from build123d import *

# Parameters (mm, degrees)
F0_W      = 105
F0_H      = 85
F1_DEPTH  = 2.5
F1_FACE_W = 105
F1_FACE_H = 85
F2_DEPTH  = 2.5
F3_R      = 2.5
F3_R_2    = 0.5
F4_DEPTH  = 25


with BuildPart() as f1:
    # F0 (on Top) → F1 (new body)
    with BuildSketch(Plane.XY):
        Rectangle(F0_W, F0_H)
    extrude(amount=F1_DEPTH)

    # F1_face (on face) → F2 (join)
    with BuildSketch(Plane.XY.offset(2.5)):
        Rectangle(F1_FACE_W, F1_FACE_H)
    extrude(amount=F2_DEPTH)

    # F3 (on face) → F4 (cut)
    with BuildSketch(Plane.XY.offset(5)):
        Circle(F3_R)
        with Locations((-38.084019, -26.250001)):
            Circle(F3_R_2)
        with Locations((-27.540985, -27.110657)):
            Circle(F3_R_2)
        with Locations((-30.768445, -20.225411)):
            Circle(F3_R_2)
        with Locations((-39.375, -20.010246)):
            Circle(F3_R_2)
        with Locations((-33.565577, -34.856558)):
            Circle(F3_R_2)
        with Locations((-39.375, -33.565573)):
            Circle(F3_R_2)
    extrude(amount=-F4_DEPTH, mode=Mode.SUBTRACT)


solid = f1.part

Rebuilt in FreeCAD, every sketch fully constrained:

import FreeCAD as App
import Part
import Sketcher


def add_polygon(sketch, points):
    """Adds a closed chain of lines whose ends are joined by coincident constraints."""
    first, n = sketch.GeometryCount, len(points)
    for a, b in zip(points, points[1:] + points[:1]):
        sketch.addGeometry(Part.LineSegment(App.Vector(*a, 0), App.Vector(*b, 0)), False)
    for i in range(n):
        sketch.addConstraint(Sketcher.Constraint("Coincident", first + i, 2, first + (i + 1) % n, 1))

doc = App.newDocument("Part")
body = doc.addObject("PartDesign::Body", "Body")

sketch1 = body.newObject("Sketcher::SketchObject", "Sketch")
sketch1.AttachmentSupport = (doc.getObject("XY_Plane"), [""])
sketch1.MapMode = "FlatFace"
add_polygon(sketch1, [(-52, 42), (-52, -42), (52, -42), (52, 42)])
sketch1.addConstraint(Sketcher.Constraint("Vertical", 0))
sketch1.addConstraint(Sketcher.Constraint("Horizontal", 1))
sketch1.addConstraint(Sketcher.Constraint("Vertical", 2))
sketch1.addConstraint(Sketcher.Constraint("Horizontal", 3))
sketch1.addConstraint(Sketcher.Constraint("Symmetric", 0, 2, 2, 2, -1, 1))
sketch1.addConstraint(Sketcher.Constraint("DistanceX", 1, 1, 1, 2, 105.0))
sketch1.addConstraint(Sketcher.Constraint("DistanceY", 0, 2, 0, 1, 85.0))
pad1 = body.newObject("PartDesign::Pad", "Pad")
pad1.Profile = sketch1
pad1.Length = 2.5

sketch2 = body.newObject("Sketcher::SketchObject", "Sketch001")
sketch2.AttachmentSupport = (doc.getObject("XY_Plane"), [""])
sketch2.MapMode = "FlatFace"
sketch2.AttachmentOffset = App.Placement(App.Vector(0, 0, 2.5), App.Rotation())
add_polygon(sketch2, [(-52, 42), (-52, -42), (52, -42), (52, 42)])
sketch2.addConstraint(Sketcher.Constraint("Vertical", 0))
sketch2.addConstraint(Sketcher.Constraint("Horizontal", 1))
sketch2.addConstraint(Sketcher.Constraint("Vertical", 2))
sketch2.addConstraint(Sketcher.Constraint("Horizontal", 3))
sketch2.addConstraint(Sketcher.Constraint("Symmetric", 0, 2, 2, 2, -1, 1))
sketch2.addConstraint(Sketcher.Constraint("DistanceX", 1, 1, 1, 2, 105.0))
sketch2.addConstraint(Sketcher.Constraint("DistanceY", 0, 2, 0, 1, 85.0))
pad2 = body.newObject("PartDesign::Pad", "Pad001")
pad2.Profile = sketch2
pad2.Length = 2.5

sketch3 = body.newObject("Sketcher::SketchObject", "Sketch002")
sketch3.AttachmentSupport = (doc.getObject("XY_Plane"), [""])
sketch3.MapMode = "FlatFace"
sketch3.AttachmentOffset = App.Placement(App.Vector(0, 0, 5), App.Rotation())
sketch3.addGeometry(Part.Circle(App.Vector(0, 0, 0), App.Vector(0, 0, 1), 2.5), False)
sketch3.addGeometry(Part.Circle(App.Vector(-38.1, -26.3, 0), App.Vector(0, 0, 1), 0.5), False)
sketch3.addGeometry(Part.Circle(App.Vector(-27.5, -27.1, 0), App.Vector(0, 0, 1), 0.5), False)
sketch3.addGeometry(Part.Circle(App.Vector(-30.8, -20.2, 0), App.Vector(0, 0, 1), 0.5), False)
sketch3.addGeometry(Part.Circle(App.Vector(-39.4, -20, 0), App.Vector(0, 0, 1), 0.5), False)
sketch3.addGeometry(Part.Circle(App.Vector(-33.6, -34.9, 0), App.Vector(0, 0, 1), 0.5), False)
sketch3.addGeometry(Part.Circle(App.Vector(-39.4, -33.6, 0), App.Vector(0, 0, 1), 0.5), False)
sketch3.addConstraint(Sketcher.Constraint("Coincident", 0, 3, -1, 1))
sketch3.addConstraint(Sketcher.Constraint("Equal", 1, 2))
sketch3.addConstraint(Sketcher.Constraint("Equal", 2, 3))
sketch3.addConstraint(Sketcher.Constraint("Equal", 3, 4))
sketch3.addConstraint(Sketcher.Constraint("Equal", 4, 5))
sketch3.addConstraint(Sketcher.Constraint("Equal", 5, 6))
sketch3.addConstraint(Sketcher.Constraint("Vertical", 4, 3, 6, 3))
sketch3.addConstraint(Sketcher.Constraint("Diameter", 0, 5.0))
sketch3.addConstraint(Sketcher.Constraint("Diameter", 1, 1.0))
sketch3.addConstraint(Sketcher.Constraint("DistanceY", 1, 3, -1, 1, 26.250001))
sketch3.addConstraint(Sketcher.Constraint("DistanceX", 4, 3, -1, 1, 39.375))
sketch3.addConstraint(Sketcher.Constraint("DistanceY", 5, 3, 2, 3, 7.745901))
sketch3.addConstraint(Sketcher.Constraint("DistanceX", 1, 3, -1, 1, 38.084019))
sketch3.addConstraint(Sketcher.Constraint("DistanceY", 3, 3, -1, 1, 20.225411))
sketch3.addConstraint(Sketcher.Constraint("DistanceX", 3, 3, 2, 3, 3.22746))
sketch3.addConstraint(Sketcher.Constraint("DistanceY", 2, 3, 4, 3, 7.100411))
sketch3.addConstraint(Sketcher.Constraint("DistanceX", 5, 3, 2, 3, 6.024592))
sketch3.addConstraint(Sketcher.Constraint("DistanceY", 6, 3, 1, 3, 7.315572))
sketch3.addConstraint(Sketcher.Constraint("DistanceX", 2, 3, -1, 1, 27.540985))
sketch3.addConstraint(Sketcher.Constraint("DistanceY", 2, 3, -1, 1, 27.110657))
pocket1 = body.newObject("PartDesign::Pocket", "Pocket")
pocket1.Profile = sketch3
pocket1.Length = 25

doc.recompute()
